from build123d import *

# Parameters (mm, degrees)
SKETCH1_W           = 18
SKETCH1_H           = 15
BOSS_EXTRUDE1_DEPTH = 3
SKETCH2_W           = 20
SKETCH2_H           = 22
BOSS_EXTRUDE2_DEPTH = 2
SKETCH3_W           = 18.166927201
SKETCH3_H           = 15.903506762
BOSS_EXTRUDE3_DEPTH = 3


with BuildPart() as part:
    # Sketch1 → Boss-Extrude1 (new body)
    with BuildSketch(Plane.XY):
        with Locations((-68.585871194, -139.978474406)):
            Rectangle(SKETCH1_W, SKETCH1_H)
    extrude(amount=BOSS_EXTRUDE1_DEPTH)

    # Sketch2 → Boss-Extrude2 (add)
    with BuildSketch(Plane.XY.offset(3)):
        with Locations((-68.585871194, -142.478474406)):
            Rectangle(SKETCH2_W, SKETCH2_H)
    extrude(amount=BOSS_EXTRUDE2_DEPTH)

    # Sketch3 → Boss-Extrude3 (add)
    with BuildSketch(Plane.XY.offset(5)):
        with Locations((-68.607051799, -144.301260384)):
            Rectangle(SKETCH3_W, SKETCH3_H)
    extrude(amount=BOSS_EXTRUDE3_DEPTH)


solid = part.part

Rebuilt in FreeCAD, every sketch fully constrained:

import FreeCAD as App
import Part
import Sketcher

V = App.Vector


def add_polygon(sketch, points):
    """Adds a closed chain of lines whose ends are joined by coincident constraints."""
    first, n = sketch.GeometryCount, len(points)
    for a, b in zip(points, points[1:] + points[:1]):
        sketch.addGeometry(Part.LineSegment(App.Vector(*a, 0), App.Vector(*b, 0)), False)
    for i in range(n):
        sketch.addConstraint(Sketcher.Constraint("Coincident", first + i, 2, first + (i + 1) % n, 1))

doc = App.newDocument("Part")
body = doc.addObject("PartDesign::Body", "Body")

# Sketch on XY plane
sketch1 = body.newObject("Sketcher::SketchObject", "Sketch")
sketch1.AttachmentSupport = (doc.getObject("XY_Plane"), [""])
sketch1.MapMode = "FlatFace"
add_polygon(sketch1, [(-78, -132), (-78, -147), (-60, -147), (-60, -132)])  # lines 0-3
sketch1.addConstraint(Sketcher.Constraint("Vertical", 0))
sketch1.addConstraint(Sketcher.Constraint("Horizontal", 1))
sketch1.addConstraint(Sketcher.Constraint("Vertical", 2))
sketch1.addConstraint(Sketcher.Constraint("Horizontal", 3))
sketch1.addConstraint(Sketcher.Constraint("DistanceX", 1, 1, 1, 2, 18.0))
sketch1.addConstraint(Sketcher.Constraint("DistanceY", 0, 2, 0, 1, 15.0))
sketch1.addConstraint(Sketcher.Constraint("DistanceX", 0, 2, -1, 1, 77.585871))
sketch1.addConstraint(Sketcher.Constraint("DistanceY", 0, 2, -1, 1, 147.478474))
pad1 = body.newObject("PartDesign::Pad", "Pad")
pad1.Profile = sketch1
pad1.Length = 3

# Sketch on XY plane
sketch2 = body.newObject("Sketcher::SketchObject", "Sketch001")
sketch2.AttachmentSupport = (doc.getObject("XY_Plane"), [""])
sketch2.MapMode = "FlatFace"
sketch2.AttachmentOffset = App.Placement(V(0, 0, 3), App.Rotation())
add_polygon(sketch2, [(-79, -131), (-79, -153), (-59, -153), (-59, -131)])  # lines 0-3
sketch2.addConstraint(Sketcher.Constraint("Vertical", 0))
sketch2.addConstraint(Sketcher.Constraint("Horizontal", 1))
sketch2.addConstraint(Sketcher.Constraint("Vertical", 2))
sketch2.addConstraint(Sketcher.Constraint("Horizontal", 3))
sketch2.addConstraint(Sketcher.Constraint("DistanceX", 1, 1, 1, 2, 20.0))
sketch2.addConstraint(Sketcher.Constraint("DistanceY", 0, 2, 0, 1, 22.0))
sketch2.addConstraint(Sketcher.Constraint("DistanceX", 0, 2, -1, 1, 78.585871))
sketch2.addConstraint(Sketcher.Constraint("DistanceY", 0, 2, -1, 1, 153.478474))
pad2 = body.newObject("PartDesign::Pad", "Pad001")
pad2.Profile = sketch2
pad2.Length = 2

# Sketch on XY plane
sketch3 = body.newObject("Sketcher::SketchObject", "Sketch002")
sketch3.AttachmentSupport = (doc.getObject("XY_Plane"), [""])
sketch3.MapMode = "FlatFace"
sketch3.AttachmentOffset = App.Placement(V(0, 0, 5), App.Rotation())
add_polygon(sketch3, [(-78, -136), (-78, -152), (-60, -152), (-60, -136)])  # lines 0-3
sketch3.addConstraint(Sketcher.Constraint("Vertical", 0))
sketch3.addConstraint(Sketcher.Constraint("Horizontal", 1))
sketch3.addConstraint(Sketcher.Constraint("Vertical", 2))
sketch3.addConstraint(Sketcher.Constraint("Horizontal", 3))
sketch3.addConstraint(Sketcher.Constraint("DistanceX", 1, 1, 1, 2, 18.166927))
sketch3.addConstraint(Sketcher.Constraint("DistanceY", 0, 2, 0, 1, 15.903507))
sketch3.addConstraint(Sketcher.Constraint("DistanceX", 1, 2, -1, 1, 59.523588))
sketch3.addConstraint(Sketcher.Constraint("DistanceY", 0, 2, -1, 1, 152.253014))
pad3 = body.newObject("PartDesign::Pad", "Pad002")
pad3.Profile = sketch3
pad3.Length = 3

doc.recompute()
